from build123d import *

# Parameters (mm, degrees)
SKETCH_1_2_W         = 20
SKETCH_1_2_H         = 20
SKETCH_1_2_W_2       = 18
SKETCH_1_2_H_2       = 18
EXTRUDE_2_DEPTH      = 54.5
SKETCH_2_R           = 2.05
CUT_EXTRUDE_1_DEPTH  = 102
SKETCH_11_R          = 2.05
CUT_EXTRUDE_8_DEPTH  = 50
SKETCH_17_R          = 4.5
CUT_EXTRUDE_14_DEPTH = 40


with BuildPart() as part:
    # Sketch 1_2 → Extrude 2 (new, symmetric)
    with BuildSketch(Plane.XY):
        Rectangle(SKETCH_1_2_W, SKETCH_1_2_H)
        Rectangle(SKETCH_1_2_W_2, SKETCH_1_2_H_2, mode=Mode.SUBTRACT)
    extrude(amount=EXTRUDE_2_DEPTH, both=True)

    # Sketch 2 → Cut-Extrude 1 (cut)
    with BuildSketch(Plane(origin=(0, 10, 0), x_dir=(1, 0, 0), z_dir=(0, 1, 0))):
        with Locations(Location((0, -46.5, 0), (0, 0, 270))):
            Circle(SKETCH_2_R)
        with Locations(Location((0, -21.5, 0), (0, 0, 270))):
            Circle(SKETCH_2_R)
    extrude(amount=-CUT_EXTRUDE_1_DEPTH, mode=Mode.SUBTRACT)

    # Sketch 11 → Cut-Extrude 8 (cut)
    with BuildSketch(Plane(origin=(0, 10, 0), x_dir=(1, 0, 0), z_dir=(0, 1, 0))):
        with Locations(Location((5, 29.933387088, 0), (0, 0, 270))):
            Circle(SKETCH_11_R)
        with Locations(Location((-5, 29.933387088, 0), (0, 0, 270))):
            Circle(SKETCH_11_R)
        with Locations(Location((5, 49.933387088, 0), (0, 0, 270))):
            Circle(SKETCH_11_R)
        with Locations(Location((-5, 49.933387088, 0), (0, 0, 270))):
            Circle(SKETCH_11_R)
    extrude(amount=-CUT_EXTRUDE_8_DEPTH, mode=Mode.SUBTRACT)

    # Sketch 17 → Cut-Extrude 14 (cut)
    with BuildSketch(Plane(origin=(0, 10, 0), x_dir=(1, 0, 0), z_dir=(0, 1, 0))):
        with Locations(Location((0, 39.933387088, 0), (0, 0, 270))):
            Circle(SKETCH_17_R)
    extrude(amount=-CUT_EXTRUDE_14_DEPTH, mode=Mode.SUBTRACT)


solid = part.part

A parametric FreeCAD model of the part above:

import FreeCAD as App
import Part
import Sketcher
from FreeCAD import Vector
Q = App.Units.Quantity


def add_polygon(sketch, points):
    """Adds a closed chain of lines whose ends are joined by coincident constraints."""
    first, n = sketch.GeometryCount, len(points)
    for a, b in zip(points, points[1:] + points[:1]):
        sketch.addGeometry(Part.LineSegment(App.Vector(*a, 0), App.Vector(*b, 0)), False)
    for i in range(n):
        sketch.addConstraint(Sketcher.Constraint("Coincident", first + i, 2, first + (i + 1) % n, 1))

doc = App.newDocument("Part")
params = doc.addObject("Spreadsheet::Sheet", "Params")
for row, (alias, value) in enumerate([
    ("sketch1_width", "20 mm"),
    ("sketch1_width2", "18 mm"),
    ("pad1_length", "109 mm"),
    ("sketch2_diameter", "4.1 mm"),
    ("pocket1_length", "102 mm"),
    ("sketch3_diameter", "4.1 mm"),
    ("pocket2_length", "50 mm"),
    ("sketch4_diameter", "9 mm"),
    ("pocket3_length", "40 mm"),
], start=1):
    params.set(f"A{row}", alias)
    params.set(f"B{row}", "=" + value)
    params.setAlias(f"B{row}", alias)

body = doc.addObject("PartDesign::Body", "Body")

sketch1 = body.newObject("Sketcher::SketchObject", "Sketch")
sketch1.AttachmentSupport = (doc.getObject("XY_Plane"), [""])
sketch1.MapMode = "FlatFace"
add_polygon(sketch1, [(-10, 10), (-10, -10), (10, -10), (10, 10)])
add_polygon(sketch1, [(9, -9), (-9, -9), (-9, 9), (9, 9)])
sketch1.addConstraint([
    Sketcher.Constraint("Vertical", 0),
    Sketcher.Constraint("Horizontal", 1),
    Sketcher.Constraint("Vertical", 2),
    Sketcher.Constraint("Horizontal", 3),
    Sketcher.Constraint("Horizontal", 4),
    Sketcher.Constraint("Vertical", 5),
    Sketcher.Constraint("Horizontal", 6),
    Sketcher.Constraint("Vertical", 7),
    Sketcher.Constraint("Symmetric", 0, 2, 2, 2, -1, 1),
    Sketcher.Constraint("Symmetric", 4, 2, 6, 2, -1, 1),
    Sketcher.Constraint("Equal", 3, 0),
    Sketcher.Constraint("Equal", 6, 5),
    Sketcher.Constraint("DistanceX", 1, 1, 1, 2, Q("20 mm")),
    Sketcher.Constraint("DistanceX", 4, 2, 4, 1, Q("18 mm")),
])
sketch1.setExpression("Constraints[20]", "Params.sketch1_width")
sketch1.setExpression("Constraints[21]", "Params.sketch1_width2")
pad1 = body.newObject("PartDesign::Pad", "Pad")
pad1.Profile = sketch1
pad1.setExpression("Length", "Params.pad1_length")
pad1.Midplane = True

sketch2 = body.newObject("Sketcher::SketchObject", "Sketch001")
sketch2.AttachmentSupport = (doc.getObject("XZ_Plane"), [""])
sketch2.MapMode = "FlatFace"
sketch2.AttachmentOffset = App.Placement(Vector(0, 0, -10), App.Rotation())
sketch2.addGeometry([
    Part.Circle(Vector(0, 46.5, 0), Vector(0, 0, 1), 2),
    Part.Circle(Vector(0, 21.5, 0), Vector(0, 0, 1), 2),
], False)
sketch2.addConstraint([
    Sketcher.Constraint("Equal", 0, 1),
    Sketcher.Constraint("PointOnObject", 0, 3, -2),
    Sketcher.Constraint("PointOnObject", 1, 3, -2),
    Sketcher.Constraint("Diameter", 0, Q("4.1 mm")),
    Sketcher.Constraint("DistanceY", 1, 3, 0, 3, Q("25 mm")),
    Sketcher.Constraint("DistanceY", -1, 1, 0, 3, Q("46.5 mm")),
])
sketch2.setExpression("Constraints[3]", "Params.sketch2_diameter")
pocket1 = body.newObject("PartDesign::Pocket", "Pocket")
pocket1.Profile = sketch2
pocket1.setExpression("Length", "Params.pocket1_length")
pocket1.Reversed = True

sketch3 = body.newObject("Sketcher::SketchObject", "Sketch002")
sketch3.AttachmentSupport = (doc.getObject("XZ_Plane"), [""])
sketch3.MapMode = "FlatFace"
sketch3.AttachmentOffset = App.Placement(Vector(0, 0, -10), App.Rotation())
sketch3.addGeometry([
    Part.Circle(Vector(5, -29.9, 0), Vector(0, 0, 1), 2),
    Part.Circle(Vector(-5, -29.9, 0), Vector(0, 0, 1), 2),
    Part.Circle(Vector(5, -49.9, 0), Vector(0, 0, 1), 2),
    Part.Circle(Vector(-5, -49.9, 0), Vector(0, 0, 1), 2),
], False)
sketch3.addConstraint([
    Sketcher.Constraint("Equal", 0, 1),
    Sketcher.Constraint("Equal", 1, 2),
    Sketcher.Constraint("Equal", 2, 3),
    Sketcher.Constraint("Symmetric", 0, 3, 1, 3, -2),
    Sketcher.Constraint("Symmetric", 2, 3, 3, 3, -2),
    Sketcher.Constraint("Vertical", 0, 3, 2, 3),
    Sketcher.Constraint("Diameter", 0, Q("4.1 mm")),
    Sketcher.Constraint("DistanceX", -1, 1, 0, 3, Q("5 mm")),
    Sketcher.Constraint("DistanceY", 2, 3, 0, 3, Q("20 mm")),
    Sketcher.Constraint("DistanceY", 0, 3, -1, 1, Q("29.933387 mm")),
])
sketch3.setExpression("Constraints[6]", "Params.sketch3_diameter")
pocket2 = body.newObject("PartDesign::Pocket", "Pocket001")
pocket2.Profile = sketch3
pocket2.setExpression("Length", "Params.pocket2_length")
pocket2.Reversed = True

sketch4 = body.newObject("Sketcher::SketchObject", "Sketch003")
sketch4.AttachmentSupport = (doc.getObject("XZ_Plane"), [""])
sketch4.MapMode = "FlatFace"
sketch4.AttachmentOffset = App.Placement(Vector(0, 0, -10), App.Rotation())
sketch4.addGeometry(Part.Circle(Vector(0, -39.9, 0), Vector(0, 0, 1), 4.5), False)
sketch4.addConstraint([
    Sketcher.Constraint("PointOnObject", 0, 3, -2),
    Sketcher.Constraint("Diameter", 0, Q("9 mm")),
    Sketcher.Constraint("DistanceY", 0, 3, -1, 1, Q("39.933387 mm")),
])
sketch4.setExpression("Constraints[1]", "Params.sketch4_diameter")
pocket3 = body.newObject("PartDesign::Pocket", "Pocket002")
pocket3.Profile = sketch4
pocket3.setExpression("Length", "Params.pocket3_length")
pocket3.Reversed = True

doc.recompute()
